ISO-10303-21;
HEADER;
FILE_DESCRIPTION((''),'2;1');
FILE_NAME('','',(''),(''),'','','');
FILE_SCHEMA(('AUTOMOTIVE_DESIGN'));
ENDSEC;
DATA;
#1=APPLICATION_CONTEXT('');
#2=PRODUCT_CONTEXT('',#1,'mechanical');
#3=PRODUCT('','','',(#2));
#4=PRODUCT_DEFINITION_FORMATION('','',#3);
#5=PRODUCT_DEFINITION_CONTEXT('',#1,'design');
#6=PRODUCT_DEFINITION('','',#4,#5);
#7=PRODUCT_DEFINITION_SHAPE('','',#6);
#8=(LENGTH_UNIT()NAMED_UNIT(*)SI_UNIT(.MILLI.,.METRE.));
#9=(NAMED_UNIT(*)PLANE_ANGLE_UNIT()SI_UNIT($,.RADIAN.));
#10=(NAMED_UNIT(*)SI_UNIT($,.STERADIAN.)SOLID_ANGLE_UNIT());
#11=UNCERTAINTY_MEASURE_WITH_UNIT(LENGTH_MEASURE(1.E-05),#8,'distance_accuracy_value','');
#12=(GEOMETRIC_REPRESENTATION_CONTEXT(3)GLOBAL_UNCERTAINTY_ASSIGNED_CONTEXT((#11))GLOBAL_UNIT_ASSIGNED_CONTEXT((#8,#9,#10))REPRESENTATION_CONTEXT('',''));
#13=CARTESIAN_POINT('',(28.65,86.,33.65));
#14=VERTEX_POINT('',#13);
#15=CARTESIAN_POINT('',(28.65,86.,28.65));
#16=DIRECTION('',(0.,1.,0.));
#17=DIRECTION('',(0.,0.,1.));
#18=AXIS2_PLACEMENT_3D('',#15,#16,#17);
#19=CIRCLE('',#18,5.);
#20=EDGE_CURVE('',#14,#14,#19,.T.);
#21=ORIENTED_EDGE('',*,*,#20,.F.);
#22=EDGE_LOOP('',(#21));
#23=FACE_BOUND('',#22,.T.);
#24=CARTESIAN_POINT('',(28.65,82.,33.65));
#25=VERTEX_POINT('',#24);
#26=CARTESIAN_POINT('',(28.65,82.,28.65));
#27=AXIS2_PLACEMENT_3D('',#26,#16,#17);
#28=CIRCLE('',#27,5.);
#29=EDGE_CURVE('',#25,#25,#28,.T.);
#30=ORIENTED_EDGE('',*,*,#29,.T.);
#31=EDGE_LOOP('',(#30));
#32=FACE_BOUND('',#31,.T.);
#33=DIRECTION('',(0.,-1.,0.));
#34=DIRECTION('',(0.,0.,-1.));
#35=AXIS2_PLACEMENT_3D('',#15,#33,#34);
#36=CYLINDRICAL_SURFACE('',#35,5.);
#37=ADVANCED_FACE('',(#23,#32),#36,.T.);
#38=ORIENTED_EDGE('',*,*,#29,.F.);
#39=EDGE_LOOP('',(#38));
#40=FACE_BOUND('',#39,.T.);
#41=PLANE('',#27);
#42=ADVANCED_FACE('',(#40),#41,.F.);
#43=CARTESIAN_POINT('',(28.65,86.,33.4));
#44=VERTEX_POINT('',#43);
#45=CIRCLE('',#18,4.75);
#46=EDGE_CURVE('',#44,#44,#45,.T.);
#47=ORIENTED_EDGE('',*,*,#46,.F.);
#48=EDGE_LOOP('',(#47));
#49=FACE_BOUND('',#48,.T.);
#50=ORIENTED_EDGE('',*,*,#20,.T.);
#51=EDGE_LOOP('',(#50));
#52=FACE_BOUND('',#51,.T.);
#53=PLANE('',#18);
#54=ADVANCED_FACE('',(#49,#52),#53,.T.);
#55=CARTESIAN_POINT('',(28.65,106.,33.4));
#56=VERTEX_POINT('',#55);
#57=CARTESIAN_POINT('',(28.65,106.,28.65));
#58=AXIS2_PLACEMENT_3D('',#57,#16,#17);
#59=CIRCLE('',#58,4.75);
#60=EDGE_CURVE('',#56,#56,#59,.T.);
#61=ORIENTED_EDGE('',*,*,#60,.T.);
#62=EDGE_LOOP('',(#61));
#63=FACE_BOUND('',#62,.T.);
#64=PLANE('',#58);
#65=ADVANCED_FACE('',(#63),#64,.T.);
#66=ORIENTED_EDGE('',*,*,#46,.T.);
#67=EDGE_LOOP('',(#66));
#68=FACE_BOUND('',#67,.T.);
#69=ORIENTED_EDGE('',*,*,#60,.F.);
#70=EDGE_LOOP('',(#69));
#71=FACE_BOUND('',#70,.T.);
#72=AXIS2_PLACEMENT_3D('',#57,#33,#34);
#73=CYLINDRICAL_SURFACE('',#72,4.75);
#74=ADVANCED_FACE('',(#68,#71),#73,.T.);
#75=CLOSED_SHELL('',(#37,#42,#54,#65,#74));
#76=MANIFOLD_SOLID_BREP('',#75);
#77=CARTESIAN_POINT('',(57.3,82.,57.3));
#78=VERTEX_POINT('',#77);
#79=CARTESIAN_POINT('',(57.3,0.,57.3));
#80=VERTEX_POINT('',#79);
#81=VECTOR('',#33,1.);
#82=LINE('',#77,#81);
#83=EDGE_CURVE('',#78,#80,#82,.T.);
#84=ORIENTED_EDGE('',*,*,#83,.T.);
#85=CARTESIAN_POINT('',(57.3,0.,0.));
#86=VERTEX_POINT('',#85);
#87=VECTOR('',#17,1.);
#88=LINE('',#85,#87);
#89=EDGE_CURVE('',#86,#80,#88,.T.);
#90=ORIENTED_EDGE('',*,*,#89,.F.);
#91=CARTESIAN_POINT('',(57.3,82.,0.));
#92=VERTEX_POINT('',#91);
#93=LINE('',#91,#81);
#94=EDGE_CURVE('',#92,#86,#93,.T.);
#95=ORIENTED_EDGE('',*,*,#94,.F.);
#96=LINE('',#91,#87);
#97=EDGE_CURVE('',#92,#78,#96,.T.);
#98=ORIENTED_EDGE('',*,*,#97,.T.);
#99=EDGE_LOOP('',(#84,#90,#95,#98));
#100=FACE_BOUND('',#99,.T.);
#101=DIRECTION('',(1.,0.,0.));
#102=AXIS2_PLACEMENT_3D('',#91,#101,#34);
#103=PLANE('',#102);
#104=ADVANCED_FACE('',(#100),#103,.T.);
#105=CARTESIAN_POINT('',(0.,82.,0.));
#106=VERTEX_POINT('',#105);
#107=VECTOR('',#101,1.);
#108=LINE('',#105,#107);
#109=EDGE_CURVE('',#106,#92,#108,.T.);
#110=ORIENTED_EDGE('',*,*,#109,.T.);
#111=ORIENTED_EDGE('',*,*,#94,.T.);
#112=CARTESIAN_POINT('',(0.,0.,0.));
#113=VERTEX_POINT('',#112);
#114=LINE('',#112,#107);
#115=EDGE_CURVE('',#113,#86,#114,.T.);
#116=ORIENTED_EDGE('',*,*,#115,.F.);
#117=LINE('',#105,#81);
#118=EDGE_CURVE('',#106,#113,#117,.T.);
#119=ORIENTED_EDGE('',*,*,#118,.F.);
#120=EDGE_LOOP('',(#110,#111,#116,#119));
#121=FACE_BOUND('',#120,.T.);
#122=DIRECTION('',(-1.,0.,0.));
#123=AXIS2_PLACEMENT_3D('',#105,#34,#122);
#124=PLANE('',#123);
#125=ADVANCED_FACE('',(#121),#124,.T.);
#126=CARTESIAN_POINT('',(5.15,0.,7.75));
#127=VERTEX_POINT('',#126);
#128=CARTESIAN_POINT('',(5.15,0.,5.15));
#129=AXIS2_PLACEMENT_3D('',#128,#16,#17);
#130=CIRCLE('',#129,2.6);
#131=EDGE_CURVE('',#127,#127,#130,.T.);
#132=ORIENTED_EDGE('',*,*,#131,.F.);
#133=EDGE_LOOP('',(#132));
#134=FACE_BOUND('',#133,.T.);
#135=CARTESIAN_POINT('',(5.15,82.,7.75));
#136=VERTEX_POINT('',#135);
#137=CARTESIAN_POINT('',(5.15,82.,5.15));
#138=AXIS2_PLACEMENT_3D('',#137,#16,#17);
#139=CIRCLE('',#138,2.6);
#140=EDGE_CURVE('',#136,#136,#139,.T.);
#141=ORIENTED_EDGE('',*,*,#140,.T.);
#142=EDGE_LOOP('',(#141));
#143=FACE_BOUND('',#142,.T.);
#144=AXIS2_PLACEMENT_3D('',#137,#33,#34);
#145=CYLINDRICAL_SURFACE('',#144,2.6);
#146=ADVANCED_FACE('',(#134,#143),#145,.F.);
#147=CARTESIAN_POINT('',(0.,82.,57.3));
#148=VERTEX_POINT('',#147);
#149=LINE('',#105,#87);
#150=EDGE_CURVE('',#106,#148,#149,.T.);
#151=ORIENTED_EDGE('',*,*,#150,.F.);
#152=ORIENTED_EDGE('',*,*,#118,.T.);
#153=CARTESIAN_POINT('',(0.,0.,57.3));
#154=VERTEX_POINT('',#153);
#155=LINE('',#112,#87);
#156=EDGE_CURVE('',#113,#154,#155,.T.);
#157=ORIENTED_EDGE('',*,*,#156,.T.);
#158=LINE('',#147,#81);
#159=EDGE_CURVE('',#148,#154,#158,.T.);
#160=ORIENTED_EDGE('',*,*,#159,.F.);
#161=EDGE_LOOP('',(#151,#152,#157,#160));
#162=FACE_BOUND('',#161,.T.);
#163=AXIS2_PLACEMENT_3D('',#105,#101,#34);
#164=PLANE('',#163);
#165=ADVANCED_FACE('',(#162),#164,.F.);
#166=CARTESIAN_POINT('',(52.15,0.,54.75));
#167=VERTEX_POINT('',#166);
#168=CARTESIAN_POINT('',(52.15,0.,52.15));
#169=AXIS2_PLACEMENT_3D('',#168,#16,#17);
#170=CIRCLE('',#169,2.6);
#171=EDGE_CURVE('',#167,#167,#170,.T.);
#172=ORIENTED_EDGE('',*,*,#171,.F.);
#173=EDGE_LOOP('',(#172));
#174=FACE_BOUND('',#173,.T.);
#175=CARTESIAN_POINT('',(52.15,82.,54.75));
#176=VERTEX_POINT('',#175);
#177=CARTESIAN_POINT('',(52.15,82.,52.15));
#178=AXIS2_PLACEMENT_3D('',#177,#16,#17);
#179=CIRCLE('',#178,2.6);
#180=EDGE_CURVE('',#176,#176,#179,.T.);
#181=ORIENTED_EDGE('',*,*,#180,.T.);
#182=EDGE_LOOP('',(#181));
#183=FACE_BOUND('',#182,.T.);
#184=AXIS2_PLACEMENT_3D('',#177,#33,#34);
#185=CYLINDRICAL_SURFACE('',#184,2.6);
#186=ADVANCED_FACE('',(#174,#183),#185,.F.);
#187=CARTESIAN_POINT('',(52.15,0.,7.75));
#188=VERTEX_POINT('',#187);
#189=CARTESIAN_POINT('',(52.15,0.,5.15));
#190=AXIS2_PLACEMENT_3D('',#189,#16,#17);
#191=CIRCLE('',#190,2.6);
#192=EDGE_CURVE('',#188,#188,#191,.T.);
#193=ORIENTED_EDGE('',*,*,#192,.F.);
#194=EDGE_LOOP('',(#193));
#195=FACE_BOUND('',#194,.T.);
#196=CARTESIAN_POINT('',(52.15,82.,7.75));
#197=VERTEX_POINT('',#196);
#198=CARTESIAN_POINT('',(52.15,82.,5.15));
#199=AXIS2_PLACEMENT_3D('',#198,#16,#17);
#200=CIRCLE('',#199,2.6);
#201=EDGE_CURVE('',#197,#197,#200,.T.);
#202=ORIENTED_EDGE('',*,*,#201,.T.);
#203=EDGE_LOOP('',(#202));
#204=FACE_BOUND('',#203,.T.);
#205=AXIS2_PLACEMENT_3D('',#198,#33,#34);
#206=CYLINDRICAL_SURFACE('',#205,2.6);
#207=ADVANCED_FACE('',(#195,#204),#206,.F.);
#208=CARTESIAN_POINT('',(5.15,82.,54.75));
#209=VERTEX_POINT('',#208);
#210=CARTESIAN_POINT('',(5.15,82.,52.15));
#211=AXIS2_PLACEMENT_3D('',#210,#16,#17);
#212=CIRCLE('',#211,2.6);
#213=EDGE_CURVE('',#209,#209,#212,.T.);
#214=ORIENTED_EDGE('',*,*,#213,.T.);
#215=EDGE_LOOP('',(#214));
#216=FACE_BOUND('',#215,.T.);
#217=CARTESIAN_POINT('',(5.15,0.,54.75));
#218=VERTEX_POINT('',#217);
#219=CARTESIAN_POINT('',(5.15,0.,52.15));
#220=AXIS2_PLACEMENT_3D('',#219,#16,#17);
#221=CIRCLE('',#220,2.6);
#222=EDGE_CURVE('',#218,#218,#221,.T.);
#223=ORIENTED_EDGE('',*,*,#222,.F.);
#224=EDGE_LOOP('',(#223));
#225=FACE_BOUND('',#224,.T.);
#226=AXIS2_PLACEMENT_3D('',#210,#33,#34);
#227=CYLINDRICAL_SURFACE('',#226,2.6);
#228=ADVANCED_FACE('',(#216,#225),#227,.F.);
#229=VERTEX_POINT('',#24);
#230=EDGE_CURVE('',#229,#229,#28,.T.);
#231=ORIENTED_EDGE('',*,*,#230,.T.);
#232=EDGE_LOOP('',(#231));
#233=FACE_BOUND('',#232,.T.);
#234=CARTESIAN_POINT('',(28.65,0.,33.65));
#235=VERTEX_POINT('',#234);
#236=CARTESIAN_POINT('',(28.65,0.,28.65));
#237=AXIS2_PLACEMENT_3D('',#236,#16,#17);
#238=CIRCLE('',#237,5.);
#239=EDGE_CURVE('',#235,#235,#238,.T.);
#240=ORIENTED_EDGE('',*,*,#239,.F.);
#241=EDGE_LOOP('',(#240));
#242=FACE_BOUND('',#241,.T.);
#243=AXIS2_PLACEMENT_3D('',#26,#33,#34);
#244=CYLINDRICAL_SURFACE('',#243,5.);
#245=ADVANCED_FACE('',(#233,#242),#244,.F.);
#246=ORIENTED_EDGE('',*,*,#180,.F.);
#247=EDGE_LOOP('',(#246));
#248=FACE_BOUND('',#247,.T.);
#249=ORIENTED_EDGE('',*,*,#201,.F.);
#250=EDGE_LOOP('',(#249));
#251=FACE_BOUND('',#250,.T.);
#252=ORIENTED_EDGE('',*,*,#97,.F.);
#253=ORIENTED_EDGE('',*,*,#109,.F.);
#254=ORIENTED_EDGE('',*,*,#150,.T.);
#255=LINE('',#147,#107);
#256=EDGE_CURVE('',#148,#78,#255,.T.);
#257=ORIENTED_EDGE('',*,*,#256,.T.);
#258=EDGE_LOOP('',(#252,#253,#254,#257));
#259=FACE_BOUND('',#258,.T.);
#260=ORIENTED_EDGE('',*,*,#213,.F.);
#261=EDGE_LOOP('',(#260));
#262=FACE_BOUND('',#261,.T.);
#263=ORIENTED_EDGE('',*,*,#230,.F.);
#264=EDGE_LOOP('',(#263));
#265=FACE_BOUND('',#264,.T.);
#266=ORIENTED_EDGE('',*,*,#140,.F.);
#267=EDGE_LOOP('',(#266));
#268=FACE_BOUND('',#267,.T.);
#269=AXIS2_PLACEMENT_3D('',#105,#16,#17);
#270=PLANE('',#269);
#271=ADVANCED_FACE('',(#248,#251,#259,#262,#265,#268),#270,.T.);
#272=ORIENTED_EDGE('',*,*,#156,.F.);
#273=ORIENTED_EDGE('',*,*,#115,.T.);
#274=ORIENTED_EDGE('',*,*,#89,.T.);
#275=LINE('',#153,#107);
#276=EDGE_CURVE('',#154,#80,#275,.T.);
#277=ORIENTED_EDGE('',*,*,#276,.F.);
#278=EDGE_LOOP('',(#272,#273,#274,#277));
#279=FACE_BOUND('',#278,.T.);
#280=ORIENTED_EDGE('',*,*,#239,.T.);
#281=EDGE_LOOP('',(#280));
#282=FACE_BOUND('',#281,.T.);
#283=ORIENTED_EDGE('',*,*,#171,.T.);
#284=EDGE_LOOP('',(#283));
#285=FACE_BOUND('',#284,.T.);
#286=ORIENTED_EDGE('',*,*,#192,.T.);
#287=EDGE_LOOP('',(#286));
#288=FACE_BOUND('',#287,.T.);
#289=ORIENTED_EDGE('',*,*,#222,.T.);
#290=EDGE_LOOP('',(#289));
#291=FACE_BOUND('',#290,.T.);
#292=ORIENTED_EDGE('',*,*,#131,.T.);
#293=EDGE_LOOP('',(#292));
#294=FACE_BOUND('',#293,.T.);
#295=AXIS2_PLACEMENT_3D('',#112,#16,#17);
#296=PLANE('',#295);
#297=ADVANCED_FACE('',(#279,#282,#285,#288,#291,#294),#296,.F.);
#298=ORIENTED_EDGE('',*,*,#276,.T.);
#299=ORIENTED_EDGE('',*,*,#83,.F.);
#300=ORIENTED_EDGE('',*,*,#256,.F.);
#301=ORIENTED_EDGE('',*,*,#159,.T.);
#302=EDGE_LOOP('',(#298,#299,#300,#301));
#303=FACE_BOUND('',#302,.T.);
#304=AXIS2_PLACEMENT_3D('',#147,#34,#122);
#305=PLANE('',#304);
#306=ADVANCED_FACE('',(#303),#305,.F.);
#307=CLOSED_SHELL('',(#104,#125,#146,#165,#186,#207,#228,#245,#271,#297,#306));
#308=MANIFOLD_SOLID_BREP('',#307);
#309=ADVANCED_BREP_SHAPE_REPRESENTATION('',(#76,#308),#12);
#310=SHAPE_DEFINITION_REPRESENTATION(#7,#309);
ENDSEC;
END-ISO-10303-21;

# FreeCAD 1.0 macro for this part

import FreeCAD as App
import Part
import Sketcher

doc = App.newDocument("Part")
params = doc.addObject("Spreadsheet::Sheet", "Params")
for row, (alias, value) in enumerate([
    ("sketch1_diameter", "10 mm"),
    ("sketch1_diameter2", "5.2 mm"),
    ("sketch1_width", "57.3 mm"),
    ("pad1_length", "82 mm"),
    ("sketch2_diameter", "10 mm"),
    ("sketch2_diameter2", "9.5 mm"),
    ("pad2_length", "4 mm"),
    ("sketch3_diameter", "9.5 mm"),
    ("pad3_length", "24 mm"),
], start=1):
    params.set(f"A{row}", alias)
    params.set(f"B{row}", "=" + value)
    params.setAlias(f"B{row}", alias)

body = doc.addObject("PartDesign::Body", "Body")

# Sketch on XZ plane
sketch1 = body.newObject("Sketcher::SketchObject", "Sketch")
sketch1.AttachmentSupport = (doc.getObject("XZ_Plane"), [""])
sketch1.MapMode = "FlatFace"
sketch1.addGeometry(Part.LineSegment(App.Vector(0, 0, 0), App.Vector(0, 57.3, 0)), False)
sketch1.addGeometry(Part.LineSegment(App.Vector(0, 57.3, 0), App.Vector(57.3, 57.3, 0)), False)
sketch1.addGeometry(Part.LineSegment(App.Vector(57.3, 57.3, 0), App.Vector(57.3, 0, 0)), False)
sketch1.addGeometry(Part.LineSegment(App.Vector(57.3, 0, 0), App.Vector(0, 0, 0)), False)
sketch1.addGeometry(Part.Circle(App.Vector(5.2, 52.1, 0), App.Vector(0, 0, 1), 2.6), False)
sketch1.addGeometry(Part.Circle(App.Vector(52.1, 52.1, 0), App.Vector(0, 0, 1), 2.6), False)
sketch1.addGeometry(Part.Circle(App.Vector(5.2, 5.2, 0), App.Vector(0, 0, 1), 2.6), False)
sketch1.addGeometry(Part.Circle(App.Vector(28.6, 28.6, 0), App.Vector(0, 0, 1), 5), False)
sketch1.addGeometry(Part.Circle(App.Vector(52.1, 5.2, 0), App.Vector(0, 0, 1), 2.6), False)
sketch1.addConstraint(Sketcher.Constraint("Coincident", 0, 2, 1, 1))
sketch1.addConstraint(Sketcher.Constraint("Coincident", 1, 2, 2, 1))
sketch1.addConstraint(Sketcher.Constraint("Coincident", 2, 2, 3, 1))
sketch1.addConstraint(Sketcher.Constraint("Coincident", 3, 2, 0, 1))
sketch1.addConstraint(Sketcher.Constraint("Vertical", 0))
sketch1.addConstraint(Sketcher.Constraint("Horizontal", 1))
sketch1.addConstraint(Sketcher.Constraint("Vertical", 2))
sketch1.addConstraint(Sketcher.Constraint("Horizontal", 3))
sketch1.addConstraint(Sketcher.Constraint("Coincident", 3, 2, -1, 1))
sketch1.addConstraint(Sketcher.Constraint("Equal", 4, 5))
sketch1.addConstraint(Sketcher.Constraint("Equal", 5, 6))
sketch1.addConstraint(Sketcher.Constraint("Equal", 6, 8))
sketch1.addConstraint(Sketcher.Constraint("Horizontal", 4, 3, 5, 3))
sketch1.addConstraint(Sketcher.Constraint("Horizontal", 6, 3, 8, 3))
sketch1.addConstraint(Sketcher.Constraint("Vertical", 4, 3, 6, 3))
sketch1.addConstraint(Sketcher.Constraint("Vertical", 5, 3, 8, 3))
sketch1.addConstraint(Sketcher.Constraint("Equal", 3, 0))
sketch1.addConstraint(Sketcher.Constraint("Diameter", 7, 10.0))
sketch1.addConstraint(Sketcher.Constraint("Diameter", 4, 5.2))
sketch1.addConstraint(Sketcher.Constraint("DistanceX", 1, 1, 1, 2, 57.3))
sketch1.addConstraint(Sketcher.Constraint("DistanceX", 4, 3, 5, 3, 47.0))
sketch1.addConstraint(Sketcher.Constraint("DistanceY", 6, 3, 4, 3, 47.0))
sketch1.addConstraint(Sketcher.Constraint("DistanceX", 4, 3, 7, 3, 23.5))
sketch1.addConstraint(Sketcher.Constraint("DistanceY", 7, 3, 4, 3, 23.5))
sketch1.addConstraint(Sketcher.Constraint("DistanceX", -1, 1, 4, 3, 5.15))
sketch1.addConstraint(Sketcher.Constraint("DistanceY", -1, 1, 4, 3, 52.15))
sketch1.setExpression("Constraints[17]", "Params.sketch1_diameter")
sketch1.setExpression("Constraints[18]", "Params.sketch1_diameter2")
sketch1.setExpression("Constraints[19]", "Params.sketch1_width")
pad1 = body.newObject("PartDesign::Pad", "Pad")
pad1.Profile = sketch1
pad1.setExpression("Length", "Params.pad1_length")
pad1.Reversed = True
body2 = doc.addObject("PartDesign::Body", "Body001")

# Sketch on XZ plane
sketch2 = body2.newObject("Sketcher::SketchObject", "Sketch001")
sketch2.AttachmentSupport = (doc.getObject("XZ_Plane001"), [""])
sketch2.MapMode = "FlatFace"
sketch2.AttachmentOffset = App.Placement(App.Vector(0, 0, -82), App.Rotation())
sketch2.addGeometry(Part.Circle(App.Vector(28.6, 28.6, 0), App.Vector(0, 0, 1), 5), False)
sketch2.addGeometry(Part.Circle(App.Vector(28.6, 28.6, 0), App.Vector(0, 0, 1), 4.8), False)
sketch2.addConstraint(Sketcher.Constraint("Coincident", 1, 3, 0, 3))
sketch2.addConstraint(Sketcher.Constraint("Diameter", 0, 10.0))
sketch2.addConstraint(Sketcher.Constraint("Diameter", 1, 9.5))
sketch2.addConstraint(Sketcher.Constraint("DistanceX", -1, 1, 0, 3, 28.65))
sketch2.addConstraint(Sketcher.Constraint("DistanceY", -1, 1, 0, 3, 28.65))
sketch2.setExpression("Constraints[1]", "Params.sketch2_diameter")
sketch2.setExpression("Constraints[2]", "Params.sketch2_diameter2")
pad2 = body2.newObject("PartDesign::Pad", "Pad001")
pad2.Profile = sketch2
pad2.setExpression("Length", "Params.pad2_length")
pad2.Reversed = True

# Sketch on XZ plane
sketch3 = body2.newObject("Sketcher::SketchObject", "Sketch002")
sketch3.AttachmentSupport = (doc.getObject("XZ_Plane001"), [""])
sketch3.MapMode = "FlatFace"
sketch3.AttachmentOffset = App.Placement(App.Vector(0, 0, -82), App.Rotation())
sketch3.addGeometry(Part.Circle(App.Vector(28.6, 28.6, 0), App.Vector(0, 0, 1), 4.8), False)
sketch3.addConstraint(Sketcher.Constraint("Diameter", 0, 9.5))
sketch3.addConstraint(Sketcher.Constraint("DistanceX", -1, 1, 0, 3, 28.65))
sketch3.addConstraint(Sketcher.Constraint("DistanceY", -1, 1, 0, 3, 28.65))
sketch3.setExpression("Constraints[0]", "Params.sketch3_diameter")
pad3 = body2.newObject("PartDesign::Pad", "Pad002")
pad3.Profile = sketch3
pad3.setExpression("Length", "Params.pad3_length")
pad3.Reversed = True

doc.recompute()
